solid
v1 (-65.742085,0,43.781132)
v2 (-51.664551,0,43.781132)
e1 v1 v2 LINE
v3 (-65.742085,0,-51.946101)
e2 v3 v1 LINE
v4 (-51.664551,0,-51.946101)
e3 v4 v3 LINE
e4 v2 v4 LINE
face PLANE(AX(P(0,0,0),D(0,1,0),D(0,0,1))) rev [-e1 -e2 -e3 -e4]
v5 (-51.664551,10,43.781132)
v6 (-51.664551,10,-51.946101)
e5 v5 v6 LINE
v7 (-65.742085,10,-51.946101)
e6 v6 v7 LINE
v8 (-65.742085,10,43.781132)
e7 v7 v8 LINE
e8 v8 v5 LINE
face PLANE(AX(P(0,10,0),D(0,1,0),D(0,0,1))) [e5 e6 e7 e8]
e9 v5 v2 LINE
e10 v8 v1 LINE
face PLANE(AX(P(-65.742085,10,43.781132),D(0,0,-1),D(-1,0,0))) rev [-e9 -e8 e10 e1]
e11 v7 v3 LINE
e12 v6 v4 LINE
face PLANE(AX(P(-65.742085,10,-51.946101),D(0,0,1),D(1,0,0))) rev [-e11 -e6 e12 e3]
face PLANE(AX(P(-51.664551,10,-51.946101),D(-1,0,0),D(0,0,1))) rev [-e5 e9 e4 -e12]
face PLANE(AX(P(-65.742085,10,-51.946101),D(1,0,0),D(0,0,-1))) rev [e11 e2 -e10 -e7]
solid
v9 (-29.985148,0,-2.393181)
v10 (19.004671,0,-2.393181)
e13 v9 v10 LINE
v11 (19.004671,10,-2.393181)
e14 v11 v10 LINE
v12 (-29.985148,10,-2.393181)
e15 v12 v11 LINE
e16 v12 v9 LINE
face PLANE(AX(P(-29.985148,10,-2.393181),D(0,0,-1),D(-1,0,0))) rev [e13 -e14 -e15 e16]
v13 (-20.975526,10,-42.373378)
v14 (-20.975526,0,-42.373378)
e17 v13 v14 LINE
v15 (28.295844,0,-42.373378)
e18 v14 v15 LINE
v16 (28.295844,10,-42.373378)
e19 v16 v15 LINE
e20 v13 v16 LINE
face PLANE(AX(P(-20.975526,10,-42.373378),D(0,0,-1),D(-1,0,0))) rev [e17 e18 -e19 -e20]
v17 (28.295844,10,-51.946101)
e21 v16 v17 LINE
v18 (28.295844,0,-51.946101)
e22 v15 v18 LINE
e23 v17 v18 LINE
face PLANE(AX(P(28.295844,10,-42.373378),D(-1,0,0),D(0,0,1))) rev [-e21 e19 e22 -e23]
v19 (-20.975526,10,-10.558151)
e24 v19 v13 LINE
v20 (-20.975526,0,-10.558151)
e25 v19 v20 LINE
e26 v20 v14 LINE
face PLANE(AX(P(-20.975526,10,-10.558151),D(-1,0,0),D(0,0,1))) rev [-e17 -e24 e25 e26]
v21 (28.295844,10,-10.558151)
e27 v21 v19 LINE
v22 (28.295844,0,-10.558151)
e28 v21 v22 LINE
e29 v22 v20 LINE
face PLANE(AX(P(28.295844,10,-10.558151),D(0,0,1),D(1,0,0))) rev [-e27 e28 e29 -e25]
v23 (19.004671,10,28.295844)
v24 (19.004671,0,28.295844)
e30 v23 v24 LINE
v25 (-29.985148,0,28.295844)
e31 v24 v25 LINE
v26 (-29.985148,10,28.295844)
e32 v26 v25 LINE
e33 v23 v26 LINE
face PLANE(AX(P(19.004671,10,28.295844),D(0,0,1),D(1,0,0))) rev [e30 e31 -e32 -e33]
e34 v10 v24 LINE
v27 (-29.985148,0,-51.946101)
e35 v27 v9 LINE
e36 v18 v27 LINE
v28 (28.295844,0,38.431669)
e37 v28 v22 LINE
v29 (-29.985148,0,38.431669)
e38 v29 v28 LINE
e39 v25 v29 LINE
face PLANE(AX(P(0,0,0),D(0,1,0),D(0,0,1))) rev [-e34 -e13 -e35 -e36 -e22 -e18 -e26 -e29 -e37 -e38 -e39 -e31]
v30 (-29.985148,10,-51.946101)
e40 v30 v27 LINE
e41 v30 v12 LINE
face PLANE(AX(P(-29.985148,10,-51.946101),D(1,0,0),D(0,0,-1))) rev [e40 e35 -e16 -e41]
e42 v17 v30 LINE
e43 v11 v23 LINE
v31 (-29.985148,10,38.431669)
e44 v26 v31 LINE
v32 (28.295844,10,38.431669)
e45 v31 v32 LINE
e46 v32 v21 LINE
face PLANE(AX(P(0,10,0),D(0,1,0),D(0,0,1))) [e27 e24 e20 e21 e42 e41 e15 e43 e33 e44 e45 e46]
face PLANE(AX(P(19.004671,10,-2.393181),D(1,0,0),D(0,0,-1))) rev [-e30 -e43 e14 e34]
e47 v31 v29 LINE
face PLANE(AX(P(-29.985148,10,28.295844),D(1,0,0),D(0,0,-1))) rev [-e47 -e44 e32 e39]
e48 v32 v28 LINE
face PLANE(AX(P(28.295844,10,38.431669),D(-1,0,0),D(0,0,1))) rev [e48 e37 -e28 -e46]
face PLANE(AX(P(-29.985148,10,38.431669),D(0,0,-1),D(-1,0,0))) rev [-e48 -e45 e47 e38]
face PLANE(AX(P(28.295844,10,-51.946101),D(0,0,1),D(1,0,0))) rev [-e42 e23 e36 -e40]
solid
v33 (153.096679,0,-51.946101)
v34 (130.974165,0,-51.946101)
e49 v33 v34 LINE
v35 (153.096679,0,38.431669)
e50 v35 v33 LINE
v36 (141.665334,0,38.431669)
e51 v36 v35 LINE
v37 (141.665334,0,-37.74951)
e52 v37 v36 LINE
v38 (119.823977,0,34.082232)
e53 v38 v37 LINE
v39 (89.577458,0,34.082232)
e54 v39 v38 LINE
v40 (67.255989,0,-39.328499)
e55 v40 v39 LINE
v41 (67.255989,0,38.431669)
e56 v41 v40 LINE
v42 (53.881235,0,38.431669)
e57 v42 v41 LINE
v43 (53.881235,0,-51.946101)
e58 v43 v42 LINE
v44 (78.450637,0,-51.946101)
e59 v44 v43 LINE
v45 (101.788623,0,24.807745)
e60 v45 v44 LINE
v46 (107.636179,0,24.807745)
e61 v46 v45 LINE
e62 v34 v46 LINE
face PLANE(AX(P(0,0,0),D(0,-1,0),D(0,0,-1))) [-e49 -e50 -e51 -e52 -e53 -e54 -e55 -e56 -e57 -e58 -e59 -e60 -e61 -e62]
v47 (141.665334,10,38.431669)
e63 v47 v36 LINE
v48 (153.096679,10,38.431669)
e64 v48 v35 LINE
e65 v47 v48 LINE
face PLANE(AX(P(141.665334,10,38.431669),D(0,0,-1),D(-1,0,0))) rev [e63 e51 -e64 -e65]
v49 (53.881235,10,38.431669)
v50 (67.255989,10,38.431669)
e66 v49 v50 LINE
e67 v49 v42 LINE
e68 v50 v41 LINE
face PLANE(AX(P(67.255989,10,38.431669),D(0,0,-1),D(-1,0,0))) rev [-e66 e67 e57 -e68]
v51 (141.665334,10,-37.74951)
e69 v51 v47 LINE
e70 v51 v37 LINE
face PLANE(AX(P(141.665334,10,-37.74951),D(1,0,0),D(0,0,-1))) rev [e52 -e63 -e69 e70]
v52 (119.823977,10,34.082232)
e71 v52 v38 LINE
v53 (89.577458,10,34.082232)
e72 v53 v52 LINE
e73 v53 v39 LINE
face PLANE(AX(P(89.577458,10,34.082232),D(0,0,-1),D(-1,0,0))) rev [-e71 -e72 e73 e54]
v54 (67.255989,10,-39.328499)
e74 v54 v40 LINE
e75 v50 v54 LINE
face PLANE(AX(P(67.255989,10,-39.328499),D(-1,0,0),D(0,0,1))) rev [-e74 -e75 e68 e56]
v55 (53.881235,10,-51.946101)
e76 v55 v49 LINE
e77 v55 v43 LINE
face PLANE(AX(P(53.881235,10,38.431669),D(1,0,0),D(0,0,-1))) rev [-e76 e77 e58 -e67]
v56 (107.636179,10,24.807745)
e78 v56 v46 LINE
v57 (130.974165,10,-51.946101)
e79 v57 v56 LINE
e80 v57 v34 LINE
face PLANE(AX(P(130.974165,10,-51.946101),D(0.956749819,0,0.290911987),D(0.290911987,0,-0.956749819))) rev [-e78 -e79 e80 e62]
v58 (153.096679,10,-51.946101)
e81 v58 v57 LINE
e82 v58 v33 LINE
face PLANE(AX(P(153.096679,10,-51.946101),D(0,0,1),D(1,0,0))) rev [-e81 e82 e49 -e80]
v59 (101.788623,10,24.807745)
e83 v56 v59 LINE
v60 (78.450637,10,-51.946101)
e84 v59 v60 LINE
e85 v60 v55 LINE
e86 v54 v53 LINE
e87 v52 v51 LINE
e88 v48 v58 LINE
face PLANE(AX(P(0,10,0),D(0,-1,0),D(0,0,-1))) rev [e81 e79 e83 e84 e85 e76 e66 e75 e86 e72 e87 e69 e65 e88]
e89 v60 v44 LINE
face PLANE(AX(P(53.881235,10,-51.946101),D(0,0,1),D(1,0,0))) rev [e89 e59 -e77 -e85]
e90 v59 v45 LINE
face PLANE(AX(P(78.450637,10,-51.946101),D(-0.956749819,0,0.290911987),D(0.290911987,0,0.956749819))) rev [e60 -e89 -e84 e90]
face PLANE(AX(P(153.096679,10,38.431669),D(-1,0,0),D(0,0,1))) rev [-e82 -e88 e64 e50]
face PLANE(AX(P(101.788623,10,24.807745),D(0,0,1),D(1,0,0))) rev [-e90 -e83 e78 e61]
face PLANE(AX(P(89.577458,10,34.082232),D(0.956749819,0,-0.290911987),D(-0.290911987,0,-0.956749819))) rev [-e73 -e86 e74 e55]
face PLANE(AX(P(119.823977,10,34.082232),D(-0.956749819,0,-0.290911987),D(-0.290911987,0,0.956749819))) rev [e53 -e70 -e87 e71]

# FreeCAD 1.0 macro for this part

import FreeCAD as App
import Part
import Sketcher


def add_polygon(sketch, points):
    """Adds a closed chain of lines whose ends are joined by coincident constraints."""
    first, n = sketch.GeometryCount, len(points)
    for a, b in zip(points, points[1:] + points[:1]):
        sketch.addGeometry(Part.LineSegment(App.Vector(*a, 0), App.Vector(*b, 0)), False)
    for i in range(n):
        sketch.addConstraint(Sketcher.Constraint("Coincident", first + i, 2, first + (i + 1) % n, 1))

doc = App.newDocument("Part")
body = doc.addObject("PartDesign::Body", "Body")

# Sketch on XZ plane
sketch1 = doc.addObject("Sketcher::SketchObject", "Sketch")
body.addObject(sketch1)
sketch1.AttachmentSupport = (doc.XZ_Plane, [""])
sketch1.MapMode = "FlatFace"
add_polygon(sketch1, [(-66, -52), (-66, 44), (-52, 44), (-52, -52)])  # lines 0-3
sketch1.addConstraint(Sketcher.Constraint("Vertical", 0))
sketch1.addConstraint(Sketcher.Constraint("Horizontal", 1))
sketch1.addConstraint(Sketcher.Constraint("Vertical", 2))
sketch1.addConstraint(Sketcher.Constraint("Horizontal", 3))
sketch1.addConstraint(Sketcher.Constraint("DistanceY", 2, 2, -1, 1, 51.946101))
sketch1.addConstraint(Sketcher.Constraint("DistanceX", 1, 1, 1, 2, 14.077534))
sketch1.addConstraint(Sketcher.Constraint("DistanceY", 0, 1, 0, 2, 95.727233))
sketch1.addConstraint(Sketcher.Constraint("DistanceX", 1, 2, -1, 1, 51.664551))
pad1 = doc.addObject("PartDesign::Pad", "Pad")
body.addObject(pad1)
pad1.Profile = sketch1
pad1.Length = 10
pad1.Reversed = True
body2 = doc.addObject("PartDesign::Body", "Body001")

# Sketch on XZ plane
sketch2 = doc.addObject("Sketcher::SketchObject", "Sketch001")
body2.addObject(sketch2)
sketch2.AttachmentSupport = (doc.getObject("XZ_Plane001"), [""])
sketch2.MapMode = "FlatFace"
add_polygon(sketch2, [(54, -52), (54, 38), (67, 38), (67, -39), (90, 34), (120, 34), (142, -38), (142, 38), (153, 38), (153, -52), (131, -52), (108, 25), (102, 25), (78, -52)])  # lines 0-13
sketch2.addConstraint(Sketcher.Constraint("Vertical", 0))
sketch2.addConstraint(Sketcher.Constraint("Horizontal", 1))
sketch2.addConstraint(Sketcher.Constraint("Vertical", 2))
sketch2.addConstraint(Sketcher.Constraint("Horizontal", 4))
sketch2.addConstraint(Sketcher.Constraint("Vertical", 6))
sketch2.addConstraint(Sketcher.Constraint("Horizontal", 7))
sketch2.addConstraint(Sketcher.Constraint("Vertical", 8))
sketch2.addConstraint(Sketcher.Constraint("Horizontal", 9))
sketch2.addConstraint(Sketcher.Constraint("Horizontal", 11))
sketch2.addConstraint(Sketcher.Constraint("Horizontal", 13))
sketch2.addConstraint(Sketcher.Constraint("Parallel", 5, 10))
sketch2.addConstraint(Sketcher.Constraint("Parallel", 3, 12))
sketch2.addConstraint(Sketcher.Constraint("Horizontal", 1, 2, 6, 2))
sketch2.addConstraint(Sketcher.Constraint("Horizontal", 9, 2, 12, 2))
sketch2.addConstraint(Sketcher.Constraint("Equal", 10, 12))
sketch2.addConstraint(Sketcher.Constraint("DistanceX", 13, 2, 13, 1, 24.569402))
sketch2.addConstraint(Sketcher.Constraint("DistanceX", 4, 1, 4, 2, 30.246519))
sketch2.addConstraint(Sketcher.Constraint("DistanceY", 0, 1, 0, 2, 90.37777))
sketch2.addConstraint(Sketcher.Constraint("DistanceY", 6, 1, 6, 2, 76.181179))
sketch2.addConstraint(Sketcher.Constraint("DistanceY", 2, 2, -1, 1, 39.328499))
sketch2.addConstraint(Sketcher.Constraint("DistanceY", 8, 2, -1, 1, 51.946101))
sketch2.addConstraint(Sketcher.Constraint("DistanceX", 0, 2, 5, 2, 87.7841))
sketch2.addConstraint(Sketcher.Constraint("DistanceX", 10, 2, 7, 2, 45.4605))
sketch2.addConstraint(Sketcher.Constraint("Distance", 5, 75.078919))
sketch2.addConstraint(Sketcher.Constraint("Distance", 10, 80.223529))
sketch2.addConstraint(Sketcher.Constraint("DistanceX", 1, 1, 1, 2, 13.374754))
sketch2.addConstraint(Sketcher.Constraint("DistanceX", 7, 1, 7, 2, 11.431345))
sketch2.addConstraint(Sketcher.Constraint("DistanceX", -1, 1, 1, 2, 67.255989))
pad2 = doc.addObject("PartDesign::Pad", "Pad001")
body2.addObject(pad2)
pad2.Profile = sketch2
pad2.Length = 10
pad2.Reversed = True
body3 = doc.addObject("PartDesign::Body", "Body002")

# Sketch on XZ plane
sketch3 = doc.addObject("Sketcher::SketchObject", "Sketch002")
body3.addObject(sketch3)
sketch3.AttachmentSupport = (doc.getObject("XZ_Plane002"), [""])
sketch3.MapMode = "FlatFace"
add_polygon(sketch3, [(28, -52), (-30, -52), (-30, -2), (19, -2), (19, 28), (-30, 28), (-30, 38), (28, 38), (28, -11), (-21, -11), (-21, -42), (28, -42)])  # lines 0-11
sketch3.addConstraint(Sketcher.Constraint("Horizontal", 0))
sketch3.addConstraint(Sketcher.Constraint("Vertical", 1))
sketch3.addConstraint(Sketcher.Constraint("Horizontal", 2))
sketch3.addConstraint(Sketcher.Constraint("Vertical", 3))
sketch3.addConstraint(Sketcher.Constraint("Horizontal", 4))
sketch3.addConstraint(Sketcher.Constraint("Vertical", 5))
sketch3.addConstraint(Sketcher.Constraint("Horizontal", 6))
sketch3.addConstraint(Sketcher.Constraint("Vertical", 7))
sketch3.addConstraint(Sketcher.Constraint("Horizontal", 8))
sketch3.addConstraint(Sketcher.Constraint("Vertical", 9))
sketch3.addConstraint(Sketcher.Constraint("Horizontal", 10))
sketch3.addConstraint(Sketcher.Constraint("Vertical", 11))
sketch3.addConstraint(Sketcher.Constraint("Vertical", 1, 2, 4, 2))
sketch3.addConstraint(Sketcher.Constraint("Vertical", 7, 2, 10, 2))
sketch3.addConstraint(Sketcher.Constraint("Equal", 4, 7))
sketch3.addConstraint(Sketcher.Constraint("DistanceX", 0, 2, 0, 1, 58.280992))
sketch3.addConstraint(Sketcher.Constraint("DistanceX", 2, 1, 2, 2, 48.989819))
sketch3.addConstraint(Sketcher.Constraint("DistanceX", 8, 2, 8, 1, 49.27137))
sketch3.addConstraint(Sketcher.Constraint("DistanceY", 1, 1, 1, 2, 49.552921))
sketch3.addConstraint(Sketcher.Constraint("DistanceY", 0, 2, -1, 1, 51.946101))
sketch3.addConstraint(Sketcher.Constraint("DistanceY", 3, 1, 3, 2, 30.689025))
sketch3.addConstraint(Sketcher.Constraint("DistanceY", 5, 1, 5, 2, 10.135825))
sketch3.addConstraint(Sketcher.Constraint("DistanceY", 9, 2, 9, 1, 31.815227))
sketch3.addConstraint(Sketcher.Constraint("DistanceX", -1, 1, 2, 2, 19.004671))
pad3 = doc.addObject("PartDesign::Pad", "Pad002")
body3.addObject(pad3)
pad3.Profile = sketch3
pad3.Length = 10
pad3.Reversed = True

doc.recompute()
